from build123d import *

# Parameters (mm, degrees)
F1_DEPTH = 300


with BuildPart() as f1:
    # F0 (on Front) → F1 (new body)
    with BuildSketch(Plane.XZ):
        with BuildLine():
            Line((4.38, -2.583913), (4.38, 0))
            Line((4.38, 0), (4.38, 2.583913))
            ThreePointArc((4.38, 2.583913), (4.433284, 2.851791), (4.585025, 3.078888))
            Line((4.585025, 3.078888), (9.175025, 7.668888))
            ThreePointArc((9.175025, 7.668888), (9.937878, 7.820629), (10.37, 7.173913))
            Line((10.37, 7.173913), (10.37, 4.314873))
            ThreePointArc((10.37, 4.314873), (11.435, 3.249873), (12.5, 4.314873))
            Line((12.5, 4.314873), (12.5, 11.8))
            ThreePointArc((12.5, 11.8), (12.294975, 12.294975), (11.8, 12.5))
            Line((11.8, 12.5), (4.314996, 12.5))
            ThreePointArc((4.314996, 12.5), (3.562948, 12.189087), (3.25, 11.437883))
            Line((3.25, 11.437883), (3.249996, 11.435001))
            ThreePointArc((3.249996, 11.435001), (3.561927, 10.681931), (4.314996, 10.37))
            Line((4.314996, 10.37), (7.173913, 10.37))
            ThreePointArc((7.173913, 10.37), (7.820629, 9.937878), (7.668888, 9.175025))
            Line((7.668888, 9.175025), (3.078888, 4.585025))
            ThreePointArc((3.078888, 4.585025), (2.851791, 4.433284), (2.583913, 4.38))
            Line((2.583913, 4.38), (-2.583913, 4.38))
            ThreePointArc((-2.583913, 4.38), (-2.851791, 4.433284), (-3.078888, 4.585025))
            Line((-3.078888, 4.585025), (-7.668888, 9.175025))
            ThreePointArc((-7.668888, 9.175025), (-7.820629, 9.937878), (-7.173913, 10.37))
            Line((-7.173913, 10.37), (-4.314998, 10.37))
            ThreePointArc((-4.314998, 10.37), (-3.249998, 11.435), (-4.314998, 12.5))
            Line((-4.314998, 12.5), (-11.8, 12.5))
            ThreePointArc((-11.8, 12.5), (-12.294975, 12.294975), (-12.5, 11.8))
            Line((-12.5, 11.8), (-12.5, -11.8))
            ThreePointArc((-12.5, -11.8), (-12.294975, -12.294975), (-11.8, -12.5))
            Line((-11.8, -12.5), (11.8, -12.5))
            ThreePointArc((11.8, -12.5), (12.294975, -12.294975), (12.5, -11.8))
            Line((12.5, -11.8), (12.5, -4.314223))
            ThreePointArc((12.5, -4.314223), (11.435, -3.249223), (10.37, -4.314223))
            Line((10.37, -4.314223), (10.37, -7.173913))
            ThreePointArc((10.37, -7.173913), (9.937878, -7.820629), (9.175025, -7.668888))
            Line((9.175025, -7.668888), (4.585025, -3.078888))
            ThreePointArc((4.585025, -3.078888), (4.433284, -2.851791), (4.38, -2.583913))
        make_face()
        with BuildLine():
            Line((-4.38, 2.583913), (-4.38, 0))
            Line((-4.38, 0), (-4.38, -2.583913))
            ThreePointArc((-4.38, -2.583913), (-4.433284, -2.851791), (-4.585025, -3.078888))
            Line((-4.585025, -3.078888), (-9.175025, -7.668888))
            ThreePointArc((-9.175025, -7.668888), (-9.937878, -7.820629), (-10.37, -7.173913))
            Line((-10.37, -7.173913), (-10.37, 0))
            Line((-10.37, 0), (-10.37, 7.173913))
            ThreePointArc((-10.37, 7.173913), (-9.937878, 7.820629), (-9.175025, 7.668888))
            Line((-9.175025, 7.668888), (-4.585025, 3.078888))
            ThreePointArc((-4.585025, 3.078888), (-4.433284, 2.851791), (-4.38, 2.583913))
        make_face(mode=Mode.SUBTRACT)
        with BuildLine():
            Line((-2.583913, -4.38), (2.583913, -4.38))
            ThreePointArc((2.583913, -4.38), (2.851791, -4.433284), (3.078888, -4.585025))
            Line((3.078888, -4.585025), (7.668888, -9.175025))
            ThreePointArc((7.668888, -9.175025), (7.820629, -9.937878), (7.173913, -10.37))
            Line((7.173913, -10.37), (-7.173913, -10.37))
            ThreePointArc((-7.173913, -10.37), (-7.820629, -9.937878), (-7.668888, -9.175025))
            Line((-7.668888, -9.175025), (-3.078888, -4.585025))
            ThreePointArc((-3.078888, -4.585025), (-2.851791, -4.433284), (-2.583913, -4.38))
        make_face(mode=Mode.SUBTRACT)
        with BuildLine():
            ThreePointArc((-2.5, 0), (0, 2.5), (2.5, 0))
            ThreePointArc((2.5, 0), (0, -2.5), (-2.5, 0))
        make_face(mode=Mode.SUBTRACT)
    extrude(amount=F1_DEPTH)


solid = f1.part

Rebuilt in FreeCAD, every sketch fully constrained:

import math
import FreeCAD as App
import Part
import Sketcher

doc = App.newDocument("Part")
params = doc.addObject("Spreadsheet::Sheet", "Params")
for row, (alias, value) in enumerate([
    ("sketch1_diameter", "5 mm"),
    ("sketch1_radius", "0.700001 mm"),
    ("sketch1_radius2", "0.7 mm"),
    ("sketch1_radius3", "0.699999 mm"),
    ("sketch1_radius4", "0.7 mm"),
    ("pad1_length", "300 mm"),
], start=1):
    params.set(f"A{row}", alias)
    params.set(f"B{row}", "=" + value)
    params.setAlias(f"B{row}", alias)

body = doc.addObject("PartDesign::Body", "Body")

sketch1 = doc.addObject("Sketcher::SketchObject", "Sketch")
body.addObject(sketch1)
sketch1.AttachmentSupport = (doc.XZ_Plane, [""])
sketch1.MapMode = "FlatFace"
sketch1.addGeometry(Part.LineSegment(App.Vector(4.38, -2.583913, 0), App.Vector(4.38, 2.583913, 0)), False)
sketch1.addGeometry(Part.ArcOfCircle(Part.Circle(App.Vector(5.080001, 2.583913, 0), App.Vector(0, 0, 1), 0.700001), math.radians(135.000048), math.radians(180.000023)), False)
sketch1.addGeometry(Part.LineSegment(App.Vector(4.585025, 3.078888, 0), App.Vector(9.175025, 7.668888, 0)), False)
sketch1.addGeometry(Part.ArcOfCircle(Part.Circle(App.Vector(9.67, 7.173913, 0), App.Vector(0, 0, 1), 0.7), math.radians(-0.000002), math.radians(134.99999)), False)
sketch1.addGeometry(Part.LineSegment(App.Vector(10.37, 7.173913, 0), App.Vector(10.37, 4.314873, 0)), False)
sketch1.addGeometry(Part.ArcOfCircle(Part.Circle(App.Vector(11.435, 4.314873, 0), App.Vector(0, 0, 1), 1.065), math.radians(180), math.radians(360)), False)
sketch1.addGeometry(Part.LineSegment(App.Vector(12.5, 4.314873, 0), App.Vector(12.5, 11.8, 0)), False)
sketch1.addGeometry(Part.ArcOfCircle(Part.Circle(App.Vector(11.800001, 11.800001, 0), App.Vector(0, 0, 1), 0.699999), math.radians(-0.000071), math.radians(90.000071)), False)
sketch1.addGeometry(Part.LineSegment(App.Vector(11.8, 12.5, 0), App.Vector(4.314996, 12.5, 0)), False)
sketch1.addGeometry(Part.ArcOfCircle(Part.Circle(App.Vector(4.314998, 11.434998, 0), App.Vector(0, 0, 1), 1.065002), math.radians(90.000094), math.radians(179.844809)), False)
sketch1.addGeometry(Part.LineSegment(App.Vector(3.25, 11.437883, 0), App.Vector(3.249996, 11.435001, 0)), False)
sketch1.addGeometry(Part.ArcOfCircle(Part.Circle(App.Vector(4.314995, 11.434999, 0), App.Vector(0, 0, 1), 1.064999), math.radians(179.999895), math.radians(270.000051)), False)
sketch1.addGeometry(Part.LineSegment(App.Vector(4.314996, 10.37, 0), App.Vector(7.173913, 10.37, 0)), False)
sketch1.addGeometry(Part.ArcOfCircle(Part.Circle(App.Vector(7.173913, 9.67, 0), App.Vector(0, 0, 1), 0.7), math.radians(-44.99999), math.radians(90.000002)), False)
sketch1.addGeometry(Part.LineSegment(App.Vector(7.668888, 9.175025, 0), App.Vector(3.078888, 4.585025, 0)), False)
sketch1.addGeometry(Part.ArcOfCircle(Part.Circle(App.Vector(2.583913, 5.080001, 0), App.Vector(0, 0, 1), 0.700001), math.radians(-90.000023), math.radians(-45.000048)), False)
sketch1.addGeometry(Part.LineSegment(App.Vector(2.583913, 4.38, 0), App.Vector(-2.583913, 4.38, 0)), False)
sketch1.addGeometry(Part.ArcOfCircle(Part.Circle(App.Vector(-2.583913, 5.080001, 0), App.Vector(0, 0, 1), 0.700001), math.radians(-134.999952), math.radians(-89.999977)), False)
sketch1.addGeometry(Part.LineSegment(App.Vector(-3.078888, 4.585025, 0), App.Vector(-7.668888, 9.175025, 0)), False)
sketch1.addGeometry(Part.ArcOfCircle(Part.Circle(App.Vector(-7.173913, 9.67, 0), App.Vector(0, 0, 1), 0.7), math.radians(89.999998), math.radians(224.99999)), False)
sketch1.addGeometry(Part.LineSegment(App.Vector(-7.173913, 10.37, 0), App.Vector(-4.314998, 10.37, 0)), False)
sketch1.addGeometry(Part.ArcOfCircle(Part.Circle(App.Vector(-4.314998, 11.435, 0), App.Vector(0, 0, 1), 1.065), math.radians(-90), math.radians(90)), False)
sketch1.addGeometry(Part.LineSegment(App.Vector(-4.314998, 12.5, 0), App.Vector(-11.8, 12.5, 0)), False)
sketch1.addGeometry(Part.ArcOfCircle(Part.Circle(App.Vector(-11.800001, 11.800001, 0), App.Vector(0, 0, 1), 0.699999), math.radians(89.999929), math.radians(180.000071)), False)
sketch1.addGeometry(Part.LineSegment(App.Vector(-12.5, 11.8, 0), App.Vector(-12.5, -11.8, 0)), False)
sketch1.addGeometry(Part.ArcOfCircle(Part.Circle(App.Vector(-11.800001, -11.800001, 0), App.Vector(0, 0, 1), 0.699999), math.radians(179.999929), math.radians(270.000071)), False)
sketch1.addGeometry(Part.LineSegment(App.Vector(-11.8, -12.5, 0), App.Vector(11.8, -12.5, 0)), False)
sketch1.addGeometry(Part.ArcOfCircle(Part.Circle(App.Vector(11.800001, -11.800001, 0), App.Vector(0, 0, 1), 0.699999), math.radians(-90.000071), math.radians(0.000071)), False)
sketch1.addGeometry(Part.LineSegment(App.Vector(12.5, -11.8, 0), App.Vector(12.5, -4.314223, 0)), False)
sketch1.addGeometry(Part.ArcOfCircle(Part.Circle(App.Vector(11.435, -4.314223, 0), App.Vector(0, 0, 1), 1.065), math.radians(0), math.radians(180)), False)
sketch1.addGeometry(Part.LineSegment(App.Vector(10.37, -4.314223, 0), App.Vector(10.37, -7.173913, 0)), False)
sketch1.addGeometry(Part.ArcOfCircle(Part.Circle(App.Vector(9.67, -7.173913, 0), App.Vector(0, 0, 1), 0.7), math.radians(-134.99999), math.radians(0.000002)), False)
sketch1.addGeometry(Part.LineSegment(App.Vector(9.175025, -7.668888, 0), App.Vector(4.585025, -3.078888, 0)), False)
sketch1.addGeometry(Part.ArcOfCircle(Part.Circle(App.Vector(5.080001, -2.583913, 0), App.Vector(0, 0, 1), 0.700001), math.radians(179.999977), math.radians(224.999952)), False)
sketch1.addGeometry(Part.ArcOfCircle(Part.Circle(App.Vector(-2.583913, -5.080001, 0), App.Vector(0, 0, 1), 0.700001), math.radians(89.999977), math.radians(134.999952)), False)
sketch1.addGeometry(Part.LineSegment(App.Vector(-2.583913, -4.38, 0), App.Vector(2.583913, -4.38, 0)), False)
sketch1.addGeometry(Part.ArcOfCircle(Part.Circle(App.Vector(2.583913, -5.080001, 0), App.Vector(0, 0, 1), 0.700001), math.radians(45.000048), math.radians(90.000023)), False)
sketch1.addGeometry(Part.LineSegment(App.Vector(3.078888, -4.585025, 0), App.Vector(7.668888, -9.175025, 0)), False)
sketch1.addGeometry(Part.ArcOfCircle(Part.Circle(App.Vector(7.173913, -9.67, 0), App.Vector(0, 0, 1), 0.7), math.radians(-90.000002), math.radians(44.99999)), False)
sketch1.addGeometry(Part.LineSegment(App.Vector(7.173913, -10.37, 0), App.Vector(-7.173913, -10.37, 0)), False)
sketch1.addGeometry(Part.ArcOfCircle(Part.Circle(App.Vector(-7.173913, -9.67, 0), App.Vector(0, 0, 1), 0.7), math.radians(135.00001), math.radians(270.000002)), False)
sketch1.addGeometry(Part.LineSegment(App.Vector(-7.668888, -9.175025, 0), App.Vector(-3.078888, -4.585025, 0)), False)
sketch1.addGeometry(Part.ArcOfCircle(Part.Circle(App.Vector(-5.080001, 2.583913, 0), App.Vector(0, 0, 1), 0.700001), math.radians(-0.000023), math.radians(44.999952)), False)
sketch1.addGeometry(Part.LineSegment(App.Vector(-4.38, 2.583913, 0), App.Vector(-4.38, -2.583913, 0)), False)
sketch1.addGeometry(Part.ArcOfCircle(Part.Circle(App.Vector(-5.080001, -2.583913, 0), App.Vector(0, 0, 1), 0.700001), math.radians(-44.999952), math.radians(0.000023)), False)
sketch1.addGeometry(Part.LineSegment(App.Vector(-4.585025, -3.078888, 0), App.Vector(-9.175025, -7.668888, 0)), False)
sketch1.addGeometry(Part.ArcOfCircle(Part.Circle(App.Vector(-9.67, -7.173913, 0), App.Vector(0, 0, 1), 0.7), math.radians(179.999998), math.radians(314.99999)), False)
sketch1.addGeometry(Part.LineSegment(App.Vector(-10.37, -7.173913, 0), App.Vector(-10.37, 7.173913, 0)), False)
sketch1.addGeometry(Part.ArcOfCircle(Part.Circle(App.Vector(-9.67, 7.173913, 0), App.Vector(0, 0, 1), 0.7), math.radians(45.00001), math.radians(180.000002)), False)
sketch1.addGeometry(Part.LineSegment(App.Vector(-9.175025, 7.668888, 0), App.Vector(-4.585025, 3.078888, 0)), False)
sketch1.addGeometry(Part.Circle(App.Vector(0, 0, 0), App.Vector(0, 0, 1), 2.5), False)
sketch1.addConstraint(Sketcher.Constraint("Coincident", 0, 2, 1, 2))
sketch1.addConstraint(Sketcher.Constraint("Coincident", 1, 1, 2, 1))
sketch1.addConstraint(Sketcher.Constraint("Coincident", 2, 2, 3, 2))
sketch1.addConstraint(Sketcher.Constraint("Coincident", 3, 1, 4, 1))
sketch1.addConstraint(Sketcher.Constraint("Coincident", 4, 2, 5, 1))
sketch1.addConstraint(Sketcher.Constraint("Coincident", 5, 2, 6, 1))
sketch1.addConstraint(Sketcher.Constraint("Coincident", 6, 2, 7, 1))
sketch1.addConstraint(Sketcher.Constraint("Coincident", 7, 2, 8, 1))
sketch1.addConstraint(Sketcher.Constraint("Coincident", 8, 2, 9, 1))
sketch1.addConstraint(Sketcher.Constraint("Coincident", 9, 2, 10, 1))
sketch1.addConstraint(Sketcher.Constraint("Coincident", 10, 2, 11, 1))
sketch1.addConstraint(Sketcher.Constraint("Coincident", 11, 2, 12, 1))
sketch1.addConstraint(Sketcher.Constraint("Coincident", 12, 2, 13, 2))
sketch1.addConstraint(Sketcher.Constraint("Coincident", 13, 1, 14, 1))
sketch1.addConstraint(Sketcher.Constraint("Coincident", 14, 2, 15, 2))
sketch1.addConstraint(Sketcher.Constraint("Coincident", 15, 1, 16, 1))
sketch1.addConstraint(Sketcher.Constraint("Coincident", 16, 2, 17, 2))
sketch1.addConstraint(Sketcher.Constraint("Coincident", 17, 1, 18, 1))
sketch1.addConstraint(Sketcher.Constraint("Coincident", 18, 2, 19, 2))
sketch1.addConstraint(Sketcher.Constraint("Coincident", 19, 1, 20, 1))
sketch1.addConstraint(Sketcher.Constraint("Coincident", 20, 2, 21, 1))
sketch1.addConstraint(Sketcher.Constraint("Coincident", 21, 2, 22, 1))
sketch1.addConstraint(Sketcher.Constraint("Coincident", 22, 2, 23, 1))
sketch1.addConstraint(Sketcher.Constraint("Coincident", 23, 2, 24, 1))
sketch1.addConstraint(Sketcher.Constraint("Coincident", 24, 2, 25, 1))
sketch1.addConstraint(Sketcher.Constraint("Coincident", 25, 2, 26, 1))
sketch1.addConstraint(Sketcher.Constraint("Coincident", 26, 2, 27, 1))
sketch1.addConstraint(Sketcher.Constraint("Coincident", 27, 2, 28, 1))
sketch1.addConstraint(Sketcher.Constraint("Coincident", 28, 2, 29, 1))
sketch1.addConstraint(Sketcher.Constraint("Coincident", 29, 2, 30, 1))
sketch1.addConstraint(Sketcher.Constraint("Coincident", 30, 2, 31, 2))
sketch1.addConstraint(Sketcher.Constraint("Coincident", 31, 1, 32, 1))
sketch1.addConstraint(Sketcher.Constraint("Coincident", 32, 2, 33, 2))
sketch1.addConstraint(Sketcher.Constraint("Coincident", 33, 1, 0, 1))
sketch1.addConstraint(Sketcher.Constraint("Coincident", 34, 1, 35, 1))
sketch1.addConstraint(Sketcher.Constraint("Coincident", 35, 2, 36, 2))
sketch1.addConstraint(Sketcher.Constraint("Coincident", 36, 1, 37, 1))
sketch1.addConstraint(Sketcher.Constraint("Coincident", 37, 2, 38, 2))
sketch1.addConstraint(Sketcher.Constraint("Coincident", 38, 1, 39, 1))
sketch1.addConstraint(Sketcher.Constraint("Coincident", 39, 2, 40, 2))
sketch1.addConstraint(Sketcher.Constraint("Coincident", 40, 1, 41, 1))
sketch1.addConstraint(Sketcher.Constraint("Coincident", 41, 2, 34, 2))
sketch1.addConstraint(Sketcher.Constraint("Coincident", 42, 1, 43, 1))
sketch1.addConstraint(Sketcher.Constraint("Coincident", 43, 2, 44, 2))
sketch1.addConstraint(Sketcher.Constraint("Coincident", 44, 1, 45, 1))
sketch1.addConstraint(Sketcher.Constraint("Coincident", 45, 2, 46, 2))
sketch1.addConstraint(Sketcher.Constraint("Coincident", 46, 1, 47, 1))
sketch1.addConstraint(Sketcher.Constraint("Coincident", 47, 2, 48, 2))
sketch1.addConstraint(Sketcher.Constraint("Coincident", 48, 1, 49, 1))
sketch1.addConstraint(Sketcher.Constraint("Coincident", 49, 2, 42, 2))
sketch1.addConstraint(Sketcher.Constraint("Vertical", 0))
sketch1.addConstraint(Sketcher.Constraint("Vertical", 4))
sketch1.addConstraint(Sketcher.Constraint("Vertical", 6))
sketch1.addConstraint(Sketcher.Constraint("Horizontal", 8))
sketch1.addConstraint(Sketcher.Constraint("Horizontal", 12))
sketch1.addConstraint(Sketcher.Constraint("Horizontal", 16))
sketch1.addConstraint(Sketcher.Constraint("Horizontal", 20))
sketch1.addConstraint(Sketcher.Constraint("Horizontal", 22))
sketch1.addConstraint(Sketcher.Constraint("Vertical", 24))
sketch1.addConstraint(Sketcher.Constraint("Horizontal", 26))
sketch1.addConstraint(Sketcher.Constraint("Vertical", 28))
sketch1.addConstraint(Sketcher.Constraint("Vertical", 30))
sketch1.addConstraint(Sketcher.Constraint("Horizontal", 35))
sketch1.addConstraint(Sketcher.Constraint("Horizontal", 39))
sketch1.addConstraint(Sketcher.Constraint("Vertical", 43))
sketch1.addConstraint(Sketcher.Constraint("Vertical", 47))
sketch1.addConstraint(Sketcher.Constraint("Coincident", 50, 3, -1, 1))
sketch1.addConstraint(Sketcher.Constraint("Coincident", 11, 3, 9, 3))
sketch1.addConstraint(Sketcher.Constraint("Diameter", 50, 5.0))
sketch1.addConstraint(Sketcher.Constraint("Radius", 1, 0.700001))
sketch1.addConstraint(Sketcher.Constraint("Radius", 3, 0.7))
sketch1.addConstraint(Sketcher.Constraint("Radius", 7, 0.699999))
sketch1.addConstraint(Sketcher.Constraint("Radius", 13, 0.7))
sketch1.addConstraint(Sketcher.Constraint("Radius", 15, 0.700001))
sketch1.addConstraint(Sketcher.Constraint("Radius", 17, 0.700001))
sketch1.addConstraint(Sketcher.Constraint("Radius", 19, 0.7))
sketch1.addConstraint(Sketcher.Constraint("Radius", 23, 0.699999))
sketch1.addConstraint(Sketcher.Constraint("Radius", 25, 0.699999))
sketch1.addConstraint(Sketcher.Constraint("Radius", 27, 0.699999))
sketch1.addConstraint(Sketcher.Constraint("Radius", 31, 0.7))
sketch1.addConstraint(Sketcher.Constraint("Radius", 33, 0.700001))
sketch1.addConstraint(Sketcher.Constraint("Radius", 34, 0.700001))
sketch1.addConstraint(Sketcher.Constraint("Radius", 36, 0.700001))
sketch1.addConstraint(Sketcher.Constraint("Radius", 38, 0.7))
sketch1.addConstraint(Sketcher.Constraint("Radius", 40, 0.7))
sketch1.addConstraint(Sketcher.Constraint("Radius", 42, 0.700001))
sketch1.addConstraint(Sketcher.Constraint("Radius", 44, 0.700001))
sketch1.addConstraint(Sketcher.Constraint("Radius", 46, 0.7))
sketch1.addConstraint(Sketcher.Constraint("Radius", 48, 0.7))
sketch1.addConstraint(Sketcher.Constraint("DistanceX", 26, 1, 26, 2, 23.6))
sketch1.addConstraint(Sketcher.Constraint("DistanceY", 24, 2, 24, 1, 23.6))
sketch1.addConstraint(Sketcher.Constraint("Radius", 5, 1.065))
sketch1.addConstraint(Sketcher.Constraint("Radius", 9, 1.065002))
sketch1.addConstraint(Sketcher.Constraint("Radius", 11, 1.064999))
sketch1.addConstraint(Sketcher.Constraint("Radius", 21, 1.065))
sketch1.addConstraint(Sketcher.Constraint("Radius", 29, 1.065))
sketch1.addConstraint(Sketcher.Constraint("DistanceX", -1, 1, 7, 3, 11.800001))
sketch1.addConstraint(Sketcher.Constraint("DistanceY", -1, 1, 7, 3, 11.800001))
sketch1.addConstraint(Sketcher.Constraint("DistanceX", 23, 3, -1, 1, 11.800001))
sketch1.addConstraint(Sketcher.Constraint("DistanceY", -1, 1, 23, 3, 11.800001))
sketch1.addConstraint(Sketcher.Constraint("DistanceY", 25, 3, -1, 1, 11.800001))
sketch1.addConstraint(Sketcher.Constraint("DistanceX", -1, 1, 27, 3, 11.800001))
sketch1.addConstraint(Sketcher.Constraint("DistanceY", -1, 1, 6, 2, 11.8))
sketch1.addConstraint(Sketcher.Constraint("DistanceX", -1, 1, 7, 2, 11.8))
sketch1.addConstraint(Sketcher.Constraint("DistanceX", 22, 2, -1, 1, 11.8))
sketch1.addConstraint(Sketcher.Constraint("DistanceY", -1, 1, 23, 2, 11.8))
sketch1.addConstraint(Sketcher.Constraint("DistanceX", 25, 2, -1, 1, 11.8))
sketch1.addConstraint(Sketcher.Constraint("DistanceY", 27, 2, -1, 1, 11.8))
sketch1.addConstraint(Sketcher.Constraint("DistanceX", -1, 1, 1, 3, 5.080001))
sketch1.addConstraint(Sketcher.Constraint("DistanceY", -1, 1, 15, 3, 5.080001))
sketch1.addConstraint(Sketcher.Constraint("DistanceY", 34, 3, -1, 1, 5.080001))
sketch1.addConstraint(Sketcher.Constraint("DistanceY", 38, 3, -1, 1, 9.67))
sketch1.addConstraint(Sketcher.Constraint("DistanceX", 42, 3, -1, 1, 5.080001))
sketch1.addConstraint(Sketcher.Constraint("DistanceX", 46, 3, -1, 1, 9.67))
sketch1.addConstraint(Sketcher.Constraint("DistanceX", -1, 1, 9, 2, 3.25))
sketch1.addConstraint(Sketcher.Constraint("DistanceY", -1, 1, 10, 2, 11.435001))
sketch1.addConstraint(Sketcher.Constraint("DistanceY", 4, 2, 4, 1, 2.85904))
sketch1.addConstraint(Sketcher.Constraint("DistanceY", 30, 2, 30, 1, 2.85969))
sketch1.addConstraint(Sketcher.Constraint("Distance", 2, 6.49124))
sketch1.addConstraint(Sketcher.Constraint("Distance", 14, 6.49124))
sketch1.addConstraint(Sketcher.Constraint("Distance", 18, 6.49124))
sketch1.addConstraint(Sketcher.Constraint("Distance", 32, 6.49124))
sketch1.addConstraint(Sketcher.Constraint("Distance", 37, 6.49124))
sketch1.addConstraint(Sketcher.Constraint("Distance", 41, 6.49124))
sketch1.addConstraint(Sketcher.Constraint("Distance", 45, 6.49124))
sketch1.addConstraint(Sketcher.Constraint("Distance", 49, 6.49124))
sketch1.addConstraint(Sketcher.Constraint("DistanceX", 8, 2, 8, 1, 7.485004))
sketch1.addConstraint(Sketcher.Constraint("DistanceX", 12, 1, 12, 2, 2.858917))
sketch1.addConstraint(Sketcher.Constraint("DistanceX", 16, 2, 16, 1, 5.167826))
sketch1.addConstraint(Sketcher.Constraint("DistanceX", 20, 1, 20, 2, 2.858915))
sketch1.addConstraint(Sketcher.Constraint("DistanceX", 22, 2, 22, 1, 7.485002))
sketch1.addConstraint(Sketcher.Constraint("DistanceX", 35, 1, 35, 2, 5.167826))
sketch1.addConstraint(Sketcher.Constraint("DistanceX", 39, 2, 39, 1, 14.347826))
sketch1.addConstraint(Sketcher.Constraint("DistanceY", 0, 1, 0, 2, 5.167826))
sketch1.addConstraint(Sketcher.Constraint("DistanceY", 6, 1, 6, 2, 7.485127))
sketch1.addConstraint(Sketcher.Constraint("DistanceY", 28, 1, 28, 2, 7.485777))
sketch1.addConstraint(Sketcher.Constraint("DistanceY", 43, 2, 43, 1, 5.167826))
sketch1.addConstraint(Sketcher.Constraint("DistanceY", 47, 1, 47, 2, 14.347826))
sketch1.addConstraint(Sketcher.Constraint("DistanceX", -1, 1, 14, 2, 3.078888))
sketch1.addConstraint(Sketcher.Constraint("DistanceY", 32, 2, -1, 1, 3.078888))
sketch1.addConstraint(Sketcher.Constraint("DistanceX", 41, 2, -1, 1, 3.078888))
sketch1.addConstraint(Sketcher.Constraint("DistanceY", -1, 1, 49, 2, 3.078888))
sketch1.addConstraint(Sketcher.Constraint("Distance", 10, 0.002882))
sketch1.addConstraint(Sketcher.Constraint("DistanceY", -1, 1, 1, 3, 2.583913))
sketch1.addConstraint(Sketcher.Constraint("DistanceY", -1, 1, 3, 3, 7.173913))
sketch1.addConstraint(Sketcher.Constraint("DistanceY", -1, 1, 5, 3, 4.314873))
sketch1.addConstraint(Sketcher.Constraint("DistanceX", -1, 1, 13, 3, 7.173913))
sketch1.addConstraint(Sketcher.Constraint("DistanceX", -1, 1, 15, 3, 2.583913))
sketch1.addConstraint(Sketcher.Constraint("DistanceX", 17, 3, -1, 1, 2.583913))
sketch1.addConstraint(Sketcher.Constraint("DistanceX", 19, 3, -1, 1, 7.173913))
sketch1.addConstraint(Sketcher.Constraint("DistanceX", 21, 3, -1, 1, 4.314998))
sketch1.addConstraint(Sketcher.Constraint("DistanceY", 29, 3, -1, 1, 4.314223))
sketch1.addConstraint(Sketcher.Constraint("DistanceY", 31, 3, -1, 1, 7.173913))
sketch1.addConstraint(Sketcher.Constraint("DistanceY", 33, 3, -1, 1, 2.583913))
sketch1.addConstraint(Sketcher.Constraint("DistanceX", 34, 3, -1, 1, 2.583913))
sketch1.addConstraint(Sketcher.Constraint("DistanceX", -1, 1, 36, 3, 2.583913))
sketch1.addConstraint(Sketcher.Constraint("DistanceX", -1, 1, 38, 3, 7.173913))
sketch1.addConstraint(Sketcher.Constraint("DistanceX", 40, 3, -1, 1, 7.173913))
sketch1.addConstraint(Sketcher.Constraint("DistanceY", -1, 1, 42, 3, 2.583913))
sketch1.addConstraint(Sketcher.Constraint("DistanceY", 44, 3, -1, 1, 2.583913))
sketch1.addConstraint(Sketcher.Constraint("DistanceY", 46, 3, -1, 1, 7.173913))
sketch1.addConstraint(Sketcher.Constraint("DistanceY", -1, 1, 48, 3, 7.173913))
sketch1.addConstraint(Sketcher.Constraint("DistanceY", -1, 1, 0, 2, 2.583913))
sketch1.addConstraint(Sketcher.Constraint("DistanceX", -1, 1, 1, 1, 4.585025))
sketch1.addConstraint(Sketcher.Constraint("DistanceY", -1, 1, 3, 1, 7.173913))
sketch1.addConstraint(Sketcher.Constraint("DistanceX", -1, 1, 11, 2, 4.314996))
sketch1.addConstraint(Sketcher.Constraint("DistanceX", -1, 1, 15, 1, 2.583913))
sketch1.addConstraint(Sketcher.Constraint("DistanceX", 17, 1, -1, 1, 3.078888))
sketch1.addConstraint(Sketcher.Constraint("DistanceX", 19, 1, -1, 1, 7.173913))
sketch1.addConstraint(Sketcher.Constraint("DistanceY", 29, 2, -1, 1, 4.314223))
sketch1.addConstraint(Sketcher.Constraint("DistanceX", 34, 1, -1, 1, 2.583913))
sketch1.addConstraint(Sketcher.Constraint("DistanceX", -1, 1, 36, 1, 3.078888))
sketch1.addConstraint(Sketcher.Constraint("DistanceX", -1, 1, 38, 1, 7.173913))
sketch1.addConstraint(Sketcher.Constraint("DistanceY", -1, 1, 42, 1, 2.583913))
sketch1.addConstraint(Sketcher.Constraint("DistanceX", 44, 1, -1, 1, 4.585025))
sketch1.addConstraint(Sketcher.Constraint("DistanceY", 46, 1, -1, 1, 7.173913))
sketch1.setExpression("Constraints[68]", "Params.sketch1_diameter")
sketch1.setExpression("Constraints[69]", "Params.sketch1_radius")
sketch1.setExpression("Constraints[70]", "Params.sketch1_radius2")
sketch1.setExpression("Constraints[71]", "Params.sketch1_radius3")
sketch1.setExpression("Constraints[72]", "Params.sketch1_radius4")
pad1 = doc.addObject("PartDesign::Pad", "Pad")
body.addObject(pad1)
pad1.Profile = sketch1
pad1.setExpression("Length", "Params.pad1_length")

doc.recompute()
